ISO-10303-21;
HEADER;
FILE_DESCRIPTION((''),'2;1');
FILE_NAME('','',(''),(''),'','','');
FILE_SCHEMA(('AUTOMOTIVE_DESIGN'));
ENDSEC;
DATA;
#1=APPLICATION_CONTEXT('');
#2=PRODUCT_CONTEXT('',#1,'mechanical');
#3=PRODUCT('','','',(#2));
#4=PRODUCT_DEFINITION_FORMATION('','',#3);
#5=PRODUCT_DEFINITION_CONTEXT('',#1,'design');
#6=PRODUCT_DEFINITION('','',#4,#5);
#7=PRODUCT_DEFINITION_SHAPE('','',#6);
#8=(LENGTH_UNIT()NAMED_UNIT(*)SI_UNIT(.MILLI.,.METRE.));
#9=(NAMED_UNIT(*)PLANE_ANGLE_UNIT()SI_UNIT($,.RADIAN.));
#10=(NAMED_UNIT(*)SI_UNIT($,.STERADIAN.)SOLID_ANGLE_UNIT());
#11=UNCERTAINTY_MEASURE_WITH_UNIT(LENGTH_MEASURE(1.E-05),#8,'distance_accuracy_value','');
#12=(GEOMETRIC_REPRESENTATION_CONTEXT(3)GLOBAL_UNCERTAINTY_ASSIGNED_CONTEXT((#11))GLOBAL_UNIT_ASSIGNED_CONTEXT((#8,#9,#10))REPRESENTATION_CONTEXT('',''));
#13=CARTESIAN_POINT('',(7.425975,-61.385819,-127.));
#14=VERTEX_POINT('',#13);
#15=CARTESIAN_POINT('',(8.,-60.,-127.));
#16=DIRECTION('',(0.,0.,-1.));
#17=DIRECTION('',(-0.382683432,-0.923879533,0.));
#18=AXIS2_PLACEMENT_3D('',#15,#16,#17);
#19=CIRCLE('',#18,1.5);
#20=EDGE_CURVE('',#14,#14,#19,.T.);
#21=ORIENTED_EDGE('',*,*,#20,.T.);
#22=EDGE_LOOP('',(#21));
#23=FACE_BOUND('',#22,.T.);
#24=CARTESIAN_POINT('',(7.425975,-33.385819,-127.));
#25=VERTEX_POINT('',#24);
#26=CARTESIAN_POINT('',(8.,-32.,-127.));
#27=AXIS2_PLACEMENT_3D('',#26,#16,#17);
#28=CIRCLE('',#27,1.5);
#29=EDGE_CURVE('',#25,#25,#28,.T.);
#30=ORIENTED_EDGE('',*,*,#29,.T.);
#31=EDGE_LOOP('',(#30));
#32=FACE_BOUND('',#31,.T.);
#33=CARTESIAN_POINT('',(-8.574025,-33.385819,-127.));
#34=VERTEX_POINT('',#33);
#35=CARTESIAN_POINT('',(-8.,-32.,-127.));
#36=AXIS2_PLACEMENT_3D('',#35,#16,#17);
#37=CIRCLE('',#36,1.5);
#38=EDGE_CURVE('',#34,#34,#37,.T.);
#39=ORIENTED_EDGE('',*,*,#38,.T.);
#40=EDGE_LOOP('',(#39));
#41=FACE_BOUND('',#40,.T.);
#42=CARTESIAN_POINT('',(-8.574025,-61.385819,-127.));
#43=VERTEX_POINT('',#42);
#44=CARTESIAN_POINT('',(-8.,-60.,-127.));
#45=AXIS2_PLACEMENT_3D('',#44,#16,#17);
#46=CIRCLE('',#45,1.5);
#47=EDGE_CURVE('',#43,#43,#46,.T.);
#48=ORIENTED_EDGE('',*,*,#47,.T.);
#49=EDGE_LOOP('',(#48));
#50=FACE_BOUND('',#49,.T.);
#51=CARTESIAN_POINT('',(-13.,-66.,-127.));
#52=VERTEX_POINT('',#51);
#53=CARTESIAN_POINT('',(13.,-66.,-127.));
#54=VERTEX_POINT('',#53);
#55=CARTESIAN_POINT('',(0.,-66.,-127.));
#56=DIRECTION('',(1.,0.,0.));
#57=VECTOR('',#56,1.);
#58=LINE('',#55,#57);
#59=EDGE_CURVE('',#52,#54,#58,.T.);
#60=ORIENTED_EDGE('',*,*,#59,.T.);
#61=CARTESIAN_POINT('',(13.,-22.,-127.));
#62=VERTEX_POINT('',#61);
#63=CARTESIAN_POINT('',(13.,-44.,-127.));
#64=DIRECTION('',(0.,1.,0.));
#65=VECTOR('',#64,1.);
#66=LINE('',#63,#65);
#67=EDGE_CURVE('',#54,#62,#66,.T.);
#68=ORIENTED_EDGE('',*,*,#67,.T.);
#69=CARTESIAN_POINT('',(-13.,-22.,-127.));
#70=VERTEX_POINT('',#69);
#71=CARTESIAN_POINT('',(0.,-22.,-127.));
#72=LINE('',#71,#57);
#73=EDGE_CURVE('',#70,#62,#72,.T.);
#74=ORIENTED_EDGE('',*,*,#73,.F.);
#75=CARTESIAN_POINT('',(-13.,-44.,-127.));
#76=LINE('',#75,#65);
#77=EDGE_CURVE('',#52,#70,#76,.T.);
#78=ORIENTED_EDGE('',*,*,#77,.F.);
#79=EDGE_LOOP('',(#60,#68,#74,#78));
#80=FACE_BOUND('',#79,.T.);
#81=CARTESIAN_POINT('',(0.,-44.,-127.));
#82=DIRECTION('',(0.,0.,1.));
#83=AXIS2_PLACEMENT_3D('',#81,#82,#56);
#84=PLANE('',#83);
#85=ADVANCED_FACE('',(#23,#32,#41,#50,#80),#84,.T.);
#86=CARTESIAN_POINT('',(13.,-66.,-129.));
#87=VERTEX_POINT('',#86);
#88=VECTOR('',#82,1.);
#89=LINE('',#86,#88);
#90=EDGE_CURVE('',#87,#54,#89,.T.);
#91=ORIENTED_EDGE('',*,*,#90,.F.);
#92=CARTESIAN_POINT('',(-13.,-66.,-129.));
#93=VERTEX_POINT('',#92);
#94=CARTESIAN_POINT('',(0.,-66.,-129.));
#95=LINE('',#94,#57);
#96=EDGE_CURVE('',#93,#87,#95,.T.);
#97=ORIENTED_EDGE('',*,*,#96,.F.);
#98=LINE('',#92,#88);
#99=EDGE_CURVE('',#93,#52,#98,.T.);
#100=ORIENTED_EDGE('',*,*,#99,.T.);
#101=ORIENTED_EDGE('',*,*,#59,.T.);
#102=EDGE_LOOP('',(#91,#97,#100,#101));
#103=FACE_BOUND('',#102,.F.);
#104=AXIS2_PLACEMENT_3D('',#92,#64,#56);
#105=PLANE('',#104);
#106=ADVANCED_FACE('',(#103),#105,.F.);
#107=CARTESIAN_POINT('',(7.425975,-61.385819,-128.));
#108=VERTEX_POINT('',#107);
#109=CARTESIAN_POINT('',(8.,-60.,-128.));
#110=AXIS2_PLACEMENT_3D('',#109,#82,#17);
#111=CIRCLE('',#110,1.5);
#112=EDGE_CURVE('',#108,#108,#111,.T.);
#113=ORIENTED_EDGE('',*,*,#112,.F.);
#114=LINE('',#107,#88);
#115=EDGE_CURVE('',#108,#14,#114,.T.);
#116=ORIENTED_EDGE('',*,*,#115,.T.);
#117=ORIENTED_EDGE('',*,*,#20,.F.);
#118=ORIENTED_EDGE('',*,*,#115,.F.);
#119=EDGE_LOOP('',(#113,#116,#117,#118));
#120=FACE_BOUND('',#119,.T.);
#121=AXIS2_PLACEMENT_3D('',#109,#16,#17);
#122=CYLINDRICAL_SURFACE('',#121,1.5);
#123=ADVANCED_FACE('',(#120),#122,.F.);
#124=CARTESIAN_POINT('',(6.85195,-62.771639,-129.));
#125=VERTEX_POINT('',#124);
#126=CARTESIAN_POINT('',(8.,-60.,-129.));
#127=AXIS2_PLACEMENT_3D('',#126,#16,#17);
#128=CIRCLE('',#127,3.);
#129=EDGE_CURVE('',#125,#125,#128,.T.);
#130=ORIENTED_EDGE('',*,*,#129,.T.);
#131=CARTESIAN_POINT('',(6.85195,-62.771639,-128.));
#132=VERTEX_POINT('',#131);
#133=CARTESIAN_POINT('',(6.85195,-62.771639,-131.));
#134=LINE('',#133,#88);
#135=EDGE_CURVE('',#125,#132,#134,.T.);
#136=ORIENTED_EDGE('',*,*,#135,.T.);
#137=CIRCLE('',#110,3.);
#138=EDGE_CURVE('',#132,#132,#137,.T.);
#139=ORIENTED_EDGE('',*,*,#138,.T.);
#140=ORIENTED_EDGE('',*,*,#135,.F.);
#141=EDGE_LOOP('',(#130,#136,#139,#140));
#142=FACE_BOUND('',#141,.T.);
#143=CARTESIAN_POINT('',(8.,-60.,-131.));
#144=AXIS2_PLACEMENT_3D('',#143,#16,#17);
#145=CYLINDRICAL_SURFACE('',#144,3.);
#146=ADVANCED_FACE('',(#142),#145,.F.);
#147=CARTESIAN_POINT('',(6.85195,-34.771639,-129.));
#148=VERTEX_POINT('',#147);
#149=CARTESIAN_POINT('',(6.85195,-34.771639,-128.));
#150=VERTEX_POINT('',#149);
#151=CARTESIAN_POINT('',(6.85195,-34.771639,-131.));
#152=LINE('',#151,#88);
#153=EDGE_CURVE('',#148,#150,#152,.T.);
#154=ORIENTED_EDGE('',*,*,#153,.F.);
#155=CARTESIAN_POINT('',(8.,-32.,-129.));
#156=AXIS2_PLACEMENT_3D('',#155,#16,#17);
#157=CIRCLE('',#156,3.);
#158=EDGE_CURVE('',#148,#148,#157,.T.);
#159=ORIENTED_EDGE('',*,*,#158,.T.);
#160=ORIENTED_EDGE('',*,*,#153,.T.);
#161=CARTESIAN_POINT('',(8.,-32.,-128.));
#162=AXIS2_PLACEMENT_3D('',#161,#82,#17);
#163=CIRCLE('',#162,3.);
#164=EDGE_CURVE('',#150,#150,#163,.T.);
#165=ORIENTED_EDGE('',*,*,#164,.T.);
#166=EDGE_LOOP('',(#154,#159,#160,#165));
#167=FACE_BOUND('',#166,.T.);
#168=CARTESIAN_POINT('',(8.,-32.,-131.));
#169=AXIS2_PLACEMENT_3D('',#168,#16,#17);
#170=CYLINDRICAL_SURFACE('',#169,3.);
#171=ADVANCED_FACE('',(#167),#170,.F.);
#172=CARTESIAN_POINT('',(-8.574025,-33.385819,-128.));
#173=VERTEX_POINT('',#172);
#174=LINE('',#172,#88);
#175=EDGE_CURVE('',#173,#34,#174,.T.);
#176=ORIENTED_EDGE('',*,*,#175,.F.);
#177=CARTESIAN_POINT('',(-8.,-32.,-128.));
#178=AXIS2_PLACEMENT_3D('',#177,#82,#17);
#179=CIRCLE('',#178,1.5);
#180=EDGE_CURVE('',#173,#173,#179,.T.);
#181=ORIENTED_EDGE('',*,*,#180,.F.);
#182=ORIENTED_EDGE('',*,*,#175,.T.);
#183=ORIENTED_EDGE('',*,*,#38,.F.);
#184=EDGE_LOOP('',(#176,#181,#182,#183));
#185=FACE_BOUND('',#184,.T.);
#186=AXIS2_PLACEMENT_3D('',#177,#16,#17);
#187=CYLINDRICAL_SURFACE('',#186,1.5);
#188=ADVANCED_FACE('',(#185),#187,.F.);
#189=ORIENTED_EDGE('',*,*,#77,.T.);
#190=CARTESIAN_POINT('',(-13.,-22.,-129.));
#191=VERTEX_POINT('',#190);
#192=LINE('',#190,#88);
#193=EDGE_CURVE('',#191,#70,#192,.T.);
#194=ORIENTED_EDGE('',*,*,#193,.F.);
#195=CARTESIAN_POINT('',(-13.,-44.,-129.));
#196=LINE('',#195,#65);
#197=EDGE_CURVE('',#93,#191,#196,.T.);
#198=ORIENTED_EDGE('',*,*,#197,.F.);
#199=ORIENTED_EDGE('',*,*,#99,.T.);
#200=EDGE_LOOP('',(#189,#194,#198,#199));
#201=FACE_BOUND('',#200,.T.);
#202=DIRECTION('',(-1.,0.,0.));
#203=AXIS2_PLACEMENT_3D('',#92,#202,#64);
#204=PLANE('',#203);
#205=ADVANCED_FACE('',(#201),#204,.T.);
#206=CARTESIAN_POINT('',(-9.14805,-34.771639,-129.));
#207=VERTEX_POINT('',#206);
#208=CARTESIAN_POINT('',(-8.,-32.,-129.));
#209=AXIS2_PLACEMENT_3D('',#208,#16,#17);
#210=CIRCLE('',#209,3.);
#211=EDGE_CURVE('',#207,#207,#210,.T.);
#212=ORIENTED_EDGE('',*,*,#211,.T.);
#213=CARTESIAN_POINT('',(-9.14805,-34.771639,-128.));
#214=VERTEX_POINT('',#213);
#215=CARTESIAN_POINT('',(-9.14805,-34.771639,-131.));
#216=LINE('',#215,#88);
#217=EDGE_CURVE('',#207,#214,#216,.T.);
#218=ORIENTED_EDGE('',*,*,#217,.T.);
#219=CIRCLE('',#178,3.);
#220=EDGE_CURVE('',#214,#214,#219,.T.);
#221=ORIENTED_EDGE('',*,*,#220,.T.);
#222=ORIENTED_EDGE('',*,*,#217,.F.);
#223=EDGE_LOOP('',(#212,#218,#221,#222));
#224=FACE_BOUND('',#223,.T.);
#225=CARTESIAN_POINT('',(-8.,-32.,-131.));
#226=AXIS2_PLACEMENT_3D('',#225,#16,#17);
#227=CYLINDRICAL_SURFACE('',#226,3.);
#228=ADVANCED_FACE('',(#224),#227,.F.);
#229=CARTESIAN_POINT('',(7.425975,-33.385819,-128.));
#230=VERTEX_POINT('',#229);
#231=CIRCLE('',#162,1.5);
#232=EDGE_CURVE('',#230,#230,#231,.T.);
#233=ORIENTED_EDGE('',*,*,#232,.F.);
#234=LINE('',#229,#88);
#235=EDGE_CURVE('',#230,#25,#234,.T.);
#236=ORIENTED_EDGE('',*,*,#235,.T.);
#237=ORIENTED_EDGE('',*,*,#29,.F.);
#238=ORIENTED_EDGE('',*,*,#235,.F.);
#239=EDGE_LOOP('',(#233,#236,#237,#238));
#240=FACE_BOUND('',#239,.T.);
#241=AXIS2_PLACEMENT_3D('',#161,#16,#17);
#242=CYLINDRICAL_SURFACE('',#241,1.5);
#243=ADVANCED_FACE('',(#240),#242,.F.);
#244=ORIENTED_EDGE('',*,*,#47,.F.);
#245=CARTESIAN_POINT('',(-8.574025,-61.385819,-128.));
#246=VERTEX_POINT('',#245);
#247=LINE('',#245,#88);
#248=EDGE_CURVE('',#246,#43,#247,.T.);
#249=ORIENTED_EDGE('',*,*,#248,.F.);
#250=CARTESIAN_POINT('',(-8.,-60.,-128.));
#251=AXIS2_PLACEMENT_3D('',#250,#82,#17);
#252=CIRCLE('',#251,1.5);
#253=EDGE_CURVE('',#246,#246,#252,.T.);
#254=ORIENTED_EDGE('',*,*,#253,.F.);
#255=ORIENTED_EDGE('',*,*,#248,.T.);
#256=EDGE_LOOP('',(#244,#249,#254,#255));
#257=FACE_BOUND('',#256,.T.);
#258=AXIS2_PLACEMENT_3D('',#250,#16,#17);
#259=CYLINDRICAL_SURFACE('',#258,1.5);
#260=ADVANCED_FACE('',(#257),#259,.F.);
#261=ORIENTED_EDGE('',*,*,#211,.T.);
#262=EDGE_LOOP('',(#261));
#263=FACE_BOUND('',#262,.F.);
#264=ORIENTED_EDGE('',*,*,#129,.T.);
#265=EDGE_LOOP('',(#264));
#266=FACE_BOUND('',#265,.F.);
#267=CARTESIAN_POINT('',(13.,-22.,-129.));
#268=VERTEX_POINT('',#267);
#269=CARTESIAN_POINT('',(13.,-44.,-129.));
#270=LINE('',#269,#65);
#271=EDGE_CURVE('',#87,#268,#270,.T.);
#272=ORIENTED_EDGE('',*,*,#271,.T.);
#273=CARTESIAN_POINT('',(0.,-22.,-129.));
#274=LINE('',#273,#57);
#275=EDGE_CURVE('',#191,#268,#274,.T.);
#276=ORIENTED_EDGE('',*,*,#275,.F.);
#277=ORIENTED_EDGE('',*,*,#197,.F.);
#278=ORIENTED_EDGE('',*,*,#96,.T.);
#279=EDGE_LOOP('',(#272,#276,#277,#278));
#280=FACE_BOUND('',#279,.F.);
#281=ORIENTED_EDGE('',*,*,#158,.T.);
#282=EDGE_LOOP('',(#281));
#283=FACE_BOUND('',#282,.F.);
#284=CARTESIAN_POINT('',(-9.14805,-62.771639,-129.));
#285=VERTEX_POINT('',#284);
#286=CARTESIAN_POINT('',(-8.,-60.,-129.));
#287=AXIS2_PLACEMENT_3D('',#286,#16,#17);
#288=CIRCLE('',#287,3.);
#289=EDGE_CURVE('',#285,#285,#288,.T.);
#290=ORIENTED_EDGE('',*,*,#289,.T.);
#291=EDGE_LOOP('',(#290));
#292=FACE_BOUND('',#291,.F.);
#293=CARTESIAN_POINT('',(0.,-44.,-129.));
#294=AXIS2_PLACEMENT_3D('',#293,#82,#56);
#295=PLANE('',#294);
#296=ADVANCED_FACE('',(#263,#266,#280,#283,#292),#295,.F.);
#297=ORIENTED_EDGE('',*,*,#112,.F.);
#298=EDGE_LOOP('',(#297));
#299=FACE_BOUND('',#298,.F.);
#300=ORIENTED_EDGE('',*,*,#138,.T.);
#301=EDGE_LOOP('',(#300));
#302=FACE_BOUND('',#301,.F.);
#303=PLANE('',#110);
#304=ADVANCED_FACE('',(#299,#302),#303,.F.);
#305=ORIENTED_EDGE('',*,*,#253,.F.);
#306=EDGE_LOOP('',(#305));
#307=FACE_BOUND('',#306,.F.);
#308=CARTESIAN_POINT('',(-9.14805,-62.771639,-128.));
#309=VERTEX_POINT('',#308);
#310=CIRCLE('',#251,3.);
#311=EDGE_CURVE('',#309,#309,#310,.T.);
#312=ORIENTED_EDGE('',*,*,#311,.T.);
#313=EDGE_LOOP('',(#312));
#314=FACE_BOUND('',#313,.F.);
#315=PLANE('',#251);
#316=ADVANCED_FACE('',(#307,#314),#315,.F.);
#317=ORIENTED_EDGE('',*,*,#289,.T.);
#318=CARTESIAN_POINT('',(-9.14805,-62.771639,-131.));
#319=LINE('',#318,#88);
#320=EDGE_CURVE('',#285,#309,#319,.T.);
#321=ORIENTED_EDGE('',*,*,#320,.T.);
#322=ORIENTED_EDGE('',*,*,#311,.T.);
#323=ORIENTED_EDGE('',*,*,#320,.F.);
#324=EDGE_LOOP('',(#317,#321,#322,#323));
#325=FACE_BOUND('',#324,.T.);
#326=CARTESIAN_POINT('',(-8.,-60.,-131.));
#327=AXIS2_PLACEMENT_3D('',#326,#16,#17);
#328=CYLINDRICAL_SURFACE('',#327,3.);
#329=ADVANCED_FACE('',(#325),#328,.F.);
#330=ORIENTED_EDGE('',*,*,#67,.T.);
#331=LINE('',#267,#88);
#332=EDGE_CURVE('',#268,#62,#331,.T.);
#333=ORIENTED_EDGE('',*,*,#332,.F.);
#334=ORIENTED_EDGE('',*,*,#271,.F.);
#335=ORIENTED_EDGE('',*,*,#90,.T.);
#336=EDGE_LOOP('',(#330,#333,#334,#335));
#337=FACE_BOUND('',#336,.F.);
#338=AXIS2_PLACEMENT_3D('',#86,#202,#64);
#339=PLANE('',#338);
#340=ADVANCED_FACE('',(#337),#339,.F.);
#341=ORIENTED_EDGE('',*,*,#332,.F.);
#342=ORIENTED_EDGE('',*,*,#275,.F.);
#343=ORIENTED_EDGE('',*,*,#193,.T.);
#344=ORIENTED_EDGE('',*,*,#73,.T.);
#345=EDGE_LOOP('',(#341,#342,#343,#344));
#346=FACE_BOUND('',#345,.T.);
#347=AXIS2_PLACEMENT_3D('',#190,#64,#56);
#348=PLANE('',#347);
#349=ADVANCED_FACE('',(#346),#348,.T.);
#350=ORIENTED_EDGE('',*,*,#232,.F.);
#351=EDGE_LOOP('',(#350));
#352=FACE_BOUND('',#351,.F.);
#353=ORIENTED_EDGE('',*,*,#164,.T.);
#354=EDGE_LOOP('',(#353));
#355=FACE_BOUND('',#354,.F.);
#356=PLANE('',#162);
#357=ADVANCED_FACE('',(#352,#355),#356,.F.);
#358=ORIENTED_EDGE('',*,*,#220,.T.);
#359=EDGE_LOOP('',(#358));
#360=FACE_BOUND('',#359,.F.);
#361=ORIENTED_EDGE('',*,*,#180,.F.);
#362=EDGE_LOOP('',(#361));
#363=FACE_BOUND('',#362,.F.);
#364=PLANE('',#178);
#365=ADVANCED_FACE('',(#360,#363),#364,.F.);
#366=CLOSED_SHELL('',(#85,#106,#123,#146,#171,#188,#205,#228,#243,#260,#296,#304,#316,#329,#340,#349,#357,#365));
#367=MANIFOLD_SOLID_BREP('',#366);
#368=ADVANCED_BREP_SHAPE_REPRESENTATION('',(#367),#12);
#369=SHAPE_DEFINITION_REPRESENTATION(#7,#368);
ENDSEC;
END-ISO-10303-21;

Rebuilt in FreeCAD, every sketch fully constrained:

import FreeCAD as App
import Part
import Sketcher

doc = App.newDocument("Part")
body = doc.addObject("PartDesign::Body", "Body")

sketch1 = body.newObject("Sketcher::SketchObject", "Sketch")
sketch1.AttachmentSupport = (doc.getObject("XY_Plane"), [""])
sketch1.MapMode = "FlatFace"
sketch1.addGeometry(Part.Circle(App.Vector(0, 0, 0), App.Vector(0, 0, 1), 1.5), False)
sketch1.addConstraint([
    Sketcher.Constraint("Coincident", 0, 3, -1, 1),
    Sketcher.Constraint("Diameter", 0, 3.0),
])
pad1 = body.newObject("PartDesign::Pad", "Pad")
pad1.Profile = sketch1
pad1.Length = 20
body2 = doc.addObject("PartDesign::Body", "Body001")
doc.recompute()

body.Placement = App.Placement(App.Vector(-8, 34, 51), App.Rotation(App.Vector(0, 0, 1), 247.5))
boolean = body2.newObject("PartDesign::Boolean", "Boolean")
boolean.Type = "Fuse"
boolean.addObjects([body])
body3 = doc.addObject("PartDesign::Body", "Body002")

sketch2 = body3.newObject("Sketcher::SketchObject", "Sketch001")
sketch2.AttachmentSupport = (doc.getObject("XY_Plane002"), [""])
sketch2.MapMode = "FlatFace"
sketch2.addGeometry(Part.Circle(App.Vector(0, 0, 0), App.Vector(0, 0, 1), 1.5), False)
sketch2.addConstraint([
    Sketcher.Constraint("Coincident", 0, 3, -1, 1),
    Sketcher.Constraint("Diameter", 0, 3.0),
])
pad2 = body3.newObject("PartDesign::Pad", "Pad001")
pad2.Profile = sketch2
pad2.Length = 20
body4 = doc.addObject("PartDesign::Body", "Body003")
doc.recompute()

body3.Placement = App.Placement(App.Vector(8, 62, 51), App.Rotation(App.Vector(0, 0, -1), 112.5))
boolean2 = body4.newObject("PartDesign::Boolean", "Boolean001")
boolean2.Type = "Fuse"
boolean2.addObjects([body3])
body5 = doc.addObject("PartDesign::Body", "Body004")

sketch3 = body5.newObject("Sketcher::SketchObject", "Sketch002")
sketch3.AttachmentSupport = (doc.getObject("XY_Plane004"), [""])
sketch3.MapMode = "FlatFace"
sketch3.addGeometry(Part.Circle(App.Vector(0, 0, 0), App.Vector(0, 0, 1), 1.5), False)
sketch3.addConstraint([
    Sketcher.Constraint("Coincident", 0, 3, -1, 1),
    Sketcher.Constraint("Diameter", 0, 3.0),
])
pad3 = body5.newObject("PartDesign::Pad", "Pad002")
pad3.Profile = sketch3
pad3.Length = 20
body6 = doc.addObject("PartDesign::Body", "Body005")
doc.recompute()

body5.Placement = App.Placement(App.Vector(-8, 62, 51), App.Rotation(App.Vector(0, 0, -1), 112.5))
boolean3 = body6.newObject("PartDesign::Boolean", "Boolean002")
boolean3.Type = "Fuse"
boolean3.addObjects([body5])
body7 = doc.addObject("PartDesign::Body", "Body006")

sketch4 = body7.newObject("Sketcher::SketchObject", "Sketch003")
sketch4.AttachmentSupport = (doc.getObject("XY_Plane006"), [""])
sketch4.MapMode = "FlatFace"
sketch4.addGeometry(Part.Circle(App.Vector(0, 0, 0), App.Vector(0, 0, 1), 1.5), False)
sketch4.addConstraint([
    Sketcher.Constraint("Coincident", 0, 3, -1, 1),
    Sketcher.Constraint("Diameter", 0, 3.0),
])
pad4 = body7.newObject("PartDesign::Pad", "Pad003")
pad4.Profile = sketch4
pad4.Length = 20
body8 = doc.addObject("PartDesign::Body", "Body007")
body8.AllowCompound = True
doc.recompute()

body7.Placement = App.Placement(App.Vector(8, 34, 51), App.Rotation(App.Vector(0, 0, 1), 247.5))
boolean4 = body8.newObject("PartDesign::Boolean", "Boolean003")
boolean4.Type = "Fuse"
boolean4.addObjects([body7])
doc.recompute()

boolean5 = body8.newObject("PartDesign::Boolean", "Boolean004")
boolean5.Type = "Fuse"
boolean5.addObjects([body2])
doc.recompute()

boolean6 = body8.newObject("PartDesign::Boolean", "Boolean005")
boolean6.Type = "Fuse"
boolean6.addObjects([body4])
doc.recompute()

boolean7 = body8.newObject("PartDesign::Boolean", "Boolean006")
boolean7.Type = "Fuse"
boolean7.addObjects([body6])
body9 = doc.addObject("PartDesign::Body", "Body008")
body9.AllowCompound = True
doc.recompute()

body8.Placement = App.Placement(App.Vector(0, -94, -180), App.Rotation(App.Vector(0, 0, 1), 0))
boolean8 = body9.newObject("PartDesign::Boolean", "Boolean007")
boolean8.Type = "Fuse"
boolean8.addObjects([body8])
body10 = doc.addObject("PartDesign::Body", "Body009")

sketch5 = body10.newObject("Sketcher::SketchObject", "Sketch004")
sketch5.AttachmentSupport = (doc.getObject("XY_Plane009"), [""])
sketch5.MapMode = "FlatFace"
sketch5.addGeometry(Part.Circle(App.Vector(0, 0, 0), App.Vector(0, 0, 1), 3), False)
sketch5.addConstraint([
    Sketcher.Constraint("Coincident", 0, 3, -1, 1),
    Sketcher.Constraint("Diameter", 0, 6.0),
])
pad5 = body10.newObject("PartDesign::Pad", "Pad004")
pad5.Profile = sketch5
pad5.Length = 3
body11 = doc.addObject("PartDesign::Body", "Body010")
doc.recompute()

body10.Placement = App.Placement(App.Vector(-8, 34, 51), App.Rotation(App.Vector(0, 0, 1), 247.5))
boolean9 = body11.newObject("PartDesign::Boolean", "Boolean008")
boolean9.Type = "Fuse"
boolean9.addObjects([body10])
body12 = doc.addObject("PartDesign::Body", "Body011")

sketch6 = body12.newObject("Sketcher::SketchObject", "Sketch005")
sketch6.AttachmentSupport = (doc.getObject("XY_Plane011"), [""])
sketch6.MapMode = "FlatFace"
sketch6.addGeometry(Part.Circle(App.Vector(0, 0, 0), App.Vector(0, 0, 1), 3), False)
sketch6.addConstraint([
    Sketcher.Constraint("Coincident", 0, 3, -1, 1),
    Sketcher.Constraint("Diameter", 0, 6.0),
])
pad6 = body12.newObject("PartDesign::Pad", "Pad005")
pad6.Profile = sketch6
pad6.Length = 3
body13 = doc.addObject("PartDesign::Body", "Body012")
doc.recompute()

body12.Placement = App.Placement(App.Vector(8, 62, 51), App.Rotation(App.Vector(0, 0, -1), 112.5))
boolean10 = body13.newObject("PartDesign::Boolean", "Boolean009")
boolean10.Type = "Fuse"
boolean10.addObjects([body12])
body14 = doc.addObject("PartDesign::Body", "Body013")

sketch7 = body14.newObject("Sketcher::SketchObject", "Sketch006")
sketch7.AttachmentSupport = (doc.getObject("XY_Plane013"), [""])
sketch7.MapMode = "FlatFace"
sketch7.addGeometry(Part.Circle(App.Vector(0, 0, 0), App.Vector(0, 0, 1), 3), False)
sketch7.addConstraint([
    Sketcher.Constraint("Coincident", 0, 3, -1, 1),
    Sketcher.Constraint("Diameter", 0, 6.0),
])
pad7 = body14.newObject("PartDesign::Pad", "Pad006")
pad7.Profile = sketch7
pad7.Length = 3
body15 = doc.addObject("PartDesign::Body", "Body014")
doc.recompute()

body14.Placement = App.Placement(App.Vector(-8, 62, 51), App.Rotation(App.Vector(0, 0, -1), 112.5))
boolean11 = body15.newObject("PartDesign::Boolean", "Boolean010")
boolean11.Type = "Fuse"
boolean11.addObjects([body14])
body16 = doc.addObject("PartDesign::Body", "Body015")

sketch8 = body16.newObject("Sketcher::SketchObject", "Sketch007")
sketch8.AttachmentSupport = (doc.getObject("XY_Plane015"), [""])
sketch8.MapMode = "FlatFace"
sketch8.addGeometry(Part.Circle(App.Vector(0, 0, 0), App.Vector(0, 0, 1), 3), False)
sketch8.addConstraint([
    Sketcher.Constraint("Coincident", 0, 3, -1, 1),
    Sketcher.Constraint("Diameter", 0, 6.0),
])
pad8 = body16.newObject("PartDesign::Pad", "Pad007")
pad8.Profile = sketch8
pad8.Length = 3
body17 = doc.addObject("PartDesign::Body", "Body016")
body17.AllowCompound = True
doc.recompute()

body16.Placement = App.Placement(App.Vector(8, 34, 51), App.Rotation(App.Vector(0, 0, 1), 247.5))
boolean12 = body17.newObject("PartDesign::Boolean", "Boolean011")
boolean12.Type = "Fuse"
boolean12.addObjects([body16])
doc.recompute()

boolean13 = body17.newObject("PartDesign::Boolean", "Boolean012")
boolean13.Type = "Fuse"
boolean13.addObjects([body11])
doc.recompute()

boolean14 = body17.newObject("PartDesign::Boolean", "Boolean013")
boolean14.Type = "Fuse"
boolean14.addObjects([body13])
doc.recompute()

boolean15 = body17.newObject("PartDesign::Boolean", "Boolean014")
boolean15.Type = "Fuse"
boolean15.addObjects([body15])
body18 = doc.addObject("PartDesign::Body", "Body017")
body18.AllowCompound = True
doc.recompute()

body17.Placement = App.Placement(App.Vector(0, -94, -183), App.Rotation(App.Vector(0, 0, 1), 0))
boolean16 = body18.newObject("PartDesign::Boolean", "Boolean015")
boolean16.Type = "Fuse"
boolean16.addObjects([body17])
body19 = doc.addObject("PartDesign::Body", "Body018")

sketch9 = body19.newObject("Sketcher::SketchObject", "Sketch008")
sketch9.AttachmentSupport = (doc.getObject("XY_Plane018"), [""])
sketch9.MapMode = "FlatFace"
sketch9.AttachmentOffset = App.Placement(App.Vector(0, 0, -130), App.Rotation())
sketch9.addGeometry([
    Part.LineSegment(App.Vector(-13, -22, 0), App.Vector(-13, -66, 0)),
    Part.LineSegment(App.Vector(-13, -66, 0), App.Vector(13, -66, 0)),
    Part.LineSegment(App.Vector(13, -66, 0), App.Vector(13, -22, 0)),
    Part.LineSegment(App.Vector(13, -22, 0), App.Vector(-13, -22, 0)),
], False)
sketch9.addConstraint([
    Sketcher.Constraint("Coincident", 0, 2, 1, 1),
    Sketcher.Constraint("Coincident", 1, 2, 2, 1),
    Sketcher.Constraint("Coincident", 2, 2, 3, 1),
    Sketcher.Constraint("Coincident", 3, 2, 0, 1),
    Sketcher.Constraint("Vertical", 0),
    Sketcher.Constraint("Horizontal", 1),
    Sketcher.Constraint("Vertical", 2),
    Sketcher.Constraint("Horizontal", 3),
    Sketcher.Constraint("DistanceX", 1, 1, 1, 2, 26.0),
    Sketcher.Constraint("DistanceY", 0, 2, 0, 1, 44.0),
    Sketcher.Constraint("DistanceX", 0, 2, -1, 1, 13.0),
    Sketcher.Constraint("DistanceY", 0, 2, -1, 1, 66.0),
])
pad9 = body19.newObject("PartDesign::Pad", "Pad008")
pad9.Profile = sketch9
pad9.Length = 2
doc.recompute()

boolean17 = body19.newObject("PartDesign::Boolean", "Boolean016")
boolean17.Type = "Cut"
boolean17.addObjects([body18])
doc.recompute()

boolean18 = body19.newObject("PartDesign::Boolean", "Boolean017")
boolean18.Type = "Cut"
boolean18.addObjects([body9])
body20 = doc.addObject("PartDesign::Body", "Body019")
doc.recompute()

body19.Placement = App.Placement(App.Vector(0, 0, 1), App.Rotation(App.Vector(0, 0, 1), 0))
boolean19 = body20.newObject("PartDesign::Boolean", "Boolean018")
boolean19.Type = "Fuse"
boolean19.addObjects([body19])

doc.recompute()
